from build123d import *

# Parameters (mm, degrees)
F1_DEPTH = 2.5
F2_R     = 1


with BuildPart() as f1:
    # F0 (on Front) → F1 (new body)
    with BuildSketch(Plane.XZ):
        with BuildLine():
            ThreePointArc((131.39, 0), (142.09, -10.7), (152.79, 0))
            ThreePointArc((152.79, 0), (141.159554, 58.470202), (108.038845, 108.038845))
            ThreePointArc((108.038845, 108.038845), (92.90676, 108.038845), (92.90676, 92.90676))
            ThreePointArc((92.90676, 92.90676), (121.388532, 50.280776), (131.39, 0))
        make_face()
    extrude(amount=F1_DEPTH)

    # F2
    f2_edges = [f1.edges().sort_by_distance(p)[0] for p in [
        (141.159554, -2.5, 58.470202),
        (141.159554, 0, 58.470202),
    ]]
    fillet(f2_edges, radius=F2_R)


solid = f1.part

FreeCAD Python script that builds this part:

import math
import FreeCAD as App
import Part
import Sketcher

V = App.Vector
Q = App.Units.Quantity


def edges_at(feature, points):
    """Names of the edges that pass closest to the given points."""
    edges = feature.Shape.Edges
    near = lambda p: min(range(len(edges)), key=lambda i: edges[i].distToShape(Part.Vertex(*p))[0])
    return sorted({f"Edge{near(p) + 1}" for p in points})

doc = App.newDocument("Part")
body = doc.addObject("PartDesign::Body", "Body")

# Sketch on XZ plane
sketch1 = doc.addObject("Sketcher::SketchObject", "Sketch")
body.addObject(sketch1)
sketch1.AttachmentSupport = (doc.XZ_Plane, [""])
sketch1.MapMode = "FlatFace"
sketch1.addGeometry(Part.ArcOfCircle(Part.Circle(V(142, 0, 0), V(0, 0, 1), 11), math.radians(180), math.radians(360)), False)
sketch1.addGeometry(Part.ArcOfCircle(Part.Circle(V(0, 0, 0), V(0, 0, 1), 153), math.radians(0), math.radians(45)), False)
sketch1.addGeometry(Part.ArcOfCircle(Part.Circle(V(100, 100, 0), V(0, 0, 1), 11), math.radians(45), math.radians(225)), False)
sketch1.addGeometry(Part.ArcOfCircle(Part.Circle(V(0, 0, 0), V(0, 0, 1), 131), math.radians(0), math.radians(45)), False)
sketch1.addConstraint(Sketcher.Constraint("Tangent", 0, 2, 1, 1))
sketch1.addConstraint(Sketcher.Constraint("Tangent", 1, 2, 2, 1))
sketch1.addConstraint(Sketcher.Constraint("Tangent", 2, 2, 3, 2))
sketch1.addConstraint(Sketcher.Constraint("Tangent", 3, 1, 0, 1))
sketch1.addConstraint(Sketcher.Constraint("Coincident", 1, 3, -1, 1))
sketch1.addConstraint(Sketcher.Constraint("Coincident", 3, 3, -1, 1))
sketch1.addConstraint(Sketcher.Constraint("PointOnObject", 0, 3, -1))
sketch1.addConstraint(Sketcher.Constraint("Radius", 0, Q("10.7 mm")))
sketch1.addConstraint(Sketcher.Constraint("Radius", 3, Q("131.389999 mm")))
sketch1.addConstraint(Sketcher.Constraint("DistanceY", 1, 3, 2, 3, Q("100.472801 mm")))
pad1 = doc.addObject("PartDesign::Pad", "Pad")
body.addObject(pad1)
pad1.Profile = sketch1
pad1.Length = 2.5
doc.recompute()

fillet = doc.addObject("PartDesign::Fillet", "Fillet")
body.addObject(fillet)
fillet.Base = (pad1, edges_at(pad1, [(141.16, -2.5, 58.47), (141.16, 0, 58.47)]))
fillet.Radius = 1

doc.recompute()
